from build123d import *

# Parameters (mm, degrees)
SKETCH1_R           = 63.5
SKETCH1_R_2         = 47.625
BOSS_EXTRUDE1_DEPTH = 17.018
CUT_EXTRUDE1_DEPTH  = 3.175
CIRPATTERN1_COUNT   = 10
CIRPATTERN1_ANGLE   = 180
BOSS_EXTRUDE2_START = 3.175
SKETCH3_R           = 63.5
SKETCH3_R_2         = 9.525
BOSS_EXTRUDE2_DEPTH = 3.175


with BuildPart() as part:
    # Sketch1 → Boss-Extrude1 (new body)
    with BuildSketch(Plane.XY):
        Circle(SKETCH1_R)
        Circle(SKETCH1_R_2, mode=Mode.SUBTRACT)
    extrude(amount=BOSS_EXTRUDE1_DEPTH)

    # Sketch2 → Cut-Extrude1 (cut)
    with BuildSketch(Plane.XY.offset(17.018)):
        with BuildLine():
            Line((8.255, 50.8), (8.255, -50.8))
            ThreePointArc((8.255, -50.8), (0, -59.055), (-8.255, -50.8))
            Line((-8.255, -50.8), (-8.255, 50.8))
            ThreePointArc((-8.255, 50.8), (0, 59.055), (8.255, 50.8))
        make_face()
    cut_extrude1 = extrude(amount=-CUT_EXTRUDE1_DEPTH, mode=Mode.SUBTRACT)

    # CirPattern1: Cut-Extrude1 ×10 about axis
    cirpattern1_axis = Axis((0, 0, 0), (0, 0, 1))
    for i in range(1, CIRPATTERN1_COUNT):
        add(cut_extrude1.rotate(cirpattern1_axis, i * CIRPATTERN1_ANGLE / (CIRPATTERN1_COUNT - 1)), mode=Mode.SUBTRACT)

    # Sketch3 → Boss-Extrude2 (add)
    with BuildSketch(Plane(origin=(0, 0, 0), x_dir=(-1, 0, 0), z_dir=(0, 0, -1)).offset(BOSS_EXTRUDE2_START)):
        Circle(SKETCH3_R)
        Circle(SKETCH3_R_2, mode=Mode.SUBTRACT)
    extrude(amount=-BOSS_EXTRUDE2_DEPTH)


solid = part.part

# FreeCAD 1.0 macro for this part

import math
import FreeCAD as App
import Part
import Sketcher
from FreeCAD import Vector
Q = App.Units.Quantity

doc = App.newDocument("Part")
body = doc.addObject("PartDesign::Body", "Body")

# Sketch on XY plane
sketch1 = body.newObject("Sketcher::SketchObject", "Sketch")
sketch1.AttachmentSupport = (doc.getObject("XY_Plane"), [""])
sketch1.MapMode = "FlatFace"
sketch1.addGeometry([
    Part.Circle(Vector(0, 0, 0), Vector(0, 0, 1), 64),
    Part.Circle(Vector(0, 0, 0), Vector(0, 0, 1), 48),
], False)
sketch1.addConstraint([
    Sketcher.Constraint("Coincident", 0, 3, -1, 1),
    Sketcher.Constraint("Coincident", 1, 3, -1, 1),
    Sketcher.Constraint("Diameter", 0, Q("5 in")),
    Sketcher.Constraint("Diameter", 1, Q("3.75 in")),
])
pad1 = body.newObject("PartDesign::Pad", "Pad")
pad1.Profile = sketch1
pad1.Length = Q("0.67 in")

# Sketch on XY plane
sketch2 = body.newObject("Sketcher::SketchObject", "Sketch001")
sketch2.AttachmentSupport = (doc.getObject("XY_Plane"), [""])
sketch2.MapMode = "FlatFace"
sketch2.AttachmentOffset = App.Placement(Vector(0, 0, 0.67 * 25.4), App.Rotation())
sketch2.addGeometry([
    Part.LineSegment(Vector(8, -51, 0), Vector(8, 51, 0)),
    Part.ArcOfCircle(Part.Circle(Vector(0, 51, 0), Vector(0, 0, 1), 8), math.radians(0), math.radians(180)),
    Part.LineSegment(Vector(-8, 51, 0), Vector(-8, -51, 0)),
    Part.ArcOfCircle(Part.Circle(Vector(0, -51, 0), Vector(0, 0, 1), 8), math.radians(180), math.radians(360)),
], False)
sketch2.addConstraint([
    Sketcher.Constraint("Tangent", 0, 2, 1, 1),
    Sketcher.Constraint("Tangent", 1, 2, 2, 1),
    Sketcher.Constraint("Tangent", 2, 2, 3, 1),
    Sketcher.Constraint("Tangent", 3, 2, 0, 1),
    Sketcher.Constraint("Vertical", 0),
    Sketcher.Constraint("Vertical", 2),
    Sketcher.Constraint("Symmetric", 1, 3, 3, 3, -1, 1),
    Sketcher.Constraint("DistanceY", 0, 1, 0, 2, Q("4 in")),
    Sketcher.Constraint("Radius", 1, Q("0.325 in")),
])
pocket1 = body.newObject("PartDesign::Pocket", "Pocket")
pocket1.Profile = sketch2
pocket1.Length = Q("0.125 in")
doc.recompute()

polarpattern = body.newObject("PartDesign::PolarPattern", "PolarPattern")
polarpattern.Originals = [pocket1]
polarpattern.Axis = (doc.getObject("Z_Axis"), [""])
polarpattern.Angle = 180
polarpattern.Occurrences = 10
body.Tip = polarpattern

# Sketch on XY plane
sketch3 = body.newObject("Sketcher::SketchObject", "Sketch002")
sketch3.AttachmentSupport = (doc.getObject("XY_Plane"), [""])
sketch3.MapMode = "FlatFace"
sketch3.AttachmentOffset = App.Placement(Vector(0, 0, -0.125 * 25.4), App.Rotation())
sketch3.addGeometry([
    Part.Circle(Vector(0, 0, 0), Vector(0, 0, 1), 64),
    Part.Circle(Vector(0, 0, 0), Vector(0, 0, 1), 10),
], False)
sketch3.addConstraint([
    Sketcher.Constraint("Coincident", 0, 3, -1, 1),
    Sketcher.Constraint("Coincident", 1, 3, -1, 1),
    Sketcher.Constraint("Diameter", 0, Q("5 in")),
    Sketcher.Constraint("Diameter", 1, Q("0.75 in")),
])
pad2 = body.newObject("PartDesign::Pad", "Pad001")
pad2.Profile = sketch3
pad2.Length = Q("0.125 in")

doc.recompute()
